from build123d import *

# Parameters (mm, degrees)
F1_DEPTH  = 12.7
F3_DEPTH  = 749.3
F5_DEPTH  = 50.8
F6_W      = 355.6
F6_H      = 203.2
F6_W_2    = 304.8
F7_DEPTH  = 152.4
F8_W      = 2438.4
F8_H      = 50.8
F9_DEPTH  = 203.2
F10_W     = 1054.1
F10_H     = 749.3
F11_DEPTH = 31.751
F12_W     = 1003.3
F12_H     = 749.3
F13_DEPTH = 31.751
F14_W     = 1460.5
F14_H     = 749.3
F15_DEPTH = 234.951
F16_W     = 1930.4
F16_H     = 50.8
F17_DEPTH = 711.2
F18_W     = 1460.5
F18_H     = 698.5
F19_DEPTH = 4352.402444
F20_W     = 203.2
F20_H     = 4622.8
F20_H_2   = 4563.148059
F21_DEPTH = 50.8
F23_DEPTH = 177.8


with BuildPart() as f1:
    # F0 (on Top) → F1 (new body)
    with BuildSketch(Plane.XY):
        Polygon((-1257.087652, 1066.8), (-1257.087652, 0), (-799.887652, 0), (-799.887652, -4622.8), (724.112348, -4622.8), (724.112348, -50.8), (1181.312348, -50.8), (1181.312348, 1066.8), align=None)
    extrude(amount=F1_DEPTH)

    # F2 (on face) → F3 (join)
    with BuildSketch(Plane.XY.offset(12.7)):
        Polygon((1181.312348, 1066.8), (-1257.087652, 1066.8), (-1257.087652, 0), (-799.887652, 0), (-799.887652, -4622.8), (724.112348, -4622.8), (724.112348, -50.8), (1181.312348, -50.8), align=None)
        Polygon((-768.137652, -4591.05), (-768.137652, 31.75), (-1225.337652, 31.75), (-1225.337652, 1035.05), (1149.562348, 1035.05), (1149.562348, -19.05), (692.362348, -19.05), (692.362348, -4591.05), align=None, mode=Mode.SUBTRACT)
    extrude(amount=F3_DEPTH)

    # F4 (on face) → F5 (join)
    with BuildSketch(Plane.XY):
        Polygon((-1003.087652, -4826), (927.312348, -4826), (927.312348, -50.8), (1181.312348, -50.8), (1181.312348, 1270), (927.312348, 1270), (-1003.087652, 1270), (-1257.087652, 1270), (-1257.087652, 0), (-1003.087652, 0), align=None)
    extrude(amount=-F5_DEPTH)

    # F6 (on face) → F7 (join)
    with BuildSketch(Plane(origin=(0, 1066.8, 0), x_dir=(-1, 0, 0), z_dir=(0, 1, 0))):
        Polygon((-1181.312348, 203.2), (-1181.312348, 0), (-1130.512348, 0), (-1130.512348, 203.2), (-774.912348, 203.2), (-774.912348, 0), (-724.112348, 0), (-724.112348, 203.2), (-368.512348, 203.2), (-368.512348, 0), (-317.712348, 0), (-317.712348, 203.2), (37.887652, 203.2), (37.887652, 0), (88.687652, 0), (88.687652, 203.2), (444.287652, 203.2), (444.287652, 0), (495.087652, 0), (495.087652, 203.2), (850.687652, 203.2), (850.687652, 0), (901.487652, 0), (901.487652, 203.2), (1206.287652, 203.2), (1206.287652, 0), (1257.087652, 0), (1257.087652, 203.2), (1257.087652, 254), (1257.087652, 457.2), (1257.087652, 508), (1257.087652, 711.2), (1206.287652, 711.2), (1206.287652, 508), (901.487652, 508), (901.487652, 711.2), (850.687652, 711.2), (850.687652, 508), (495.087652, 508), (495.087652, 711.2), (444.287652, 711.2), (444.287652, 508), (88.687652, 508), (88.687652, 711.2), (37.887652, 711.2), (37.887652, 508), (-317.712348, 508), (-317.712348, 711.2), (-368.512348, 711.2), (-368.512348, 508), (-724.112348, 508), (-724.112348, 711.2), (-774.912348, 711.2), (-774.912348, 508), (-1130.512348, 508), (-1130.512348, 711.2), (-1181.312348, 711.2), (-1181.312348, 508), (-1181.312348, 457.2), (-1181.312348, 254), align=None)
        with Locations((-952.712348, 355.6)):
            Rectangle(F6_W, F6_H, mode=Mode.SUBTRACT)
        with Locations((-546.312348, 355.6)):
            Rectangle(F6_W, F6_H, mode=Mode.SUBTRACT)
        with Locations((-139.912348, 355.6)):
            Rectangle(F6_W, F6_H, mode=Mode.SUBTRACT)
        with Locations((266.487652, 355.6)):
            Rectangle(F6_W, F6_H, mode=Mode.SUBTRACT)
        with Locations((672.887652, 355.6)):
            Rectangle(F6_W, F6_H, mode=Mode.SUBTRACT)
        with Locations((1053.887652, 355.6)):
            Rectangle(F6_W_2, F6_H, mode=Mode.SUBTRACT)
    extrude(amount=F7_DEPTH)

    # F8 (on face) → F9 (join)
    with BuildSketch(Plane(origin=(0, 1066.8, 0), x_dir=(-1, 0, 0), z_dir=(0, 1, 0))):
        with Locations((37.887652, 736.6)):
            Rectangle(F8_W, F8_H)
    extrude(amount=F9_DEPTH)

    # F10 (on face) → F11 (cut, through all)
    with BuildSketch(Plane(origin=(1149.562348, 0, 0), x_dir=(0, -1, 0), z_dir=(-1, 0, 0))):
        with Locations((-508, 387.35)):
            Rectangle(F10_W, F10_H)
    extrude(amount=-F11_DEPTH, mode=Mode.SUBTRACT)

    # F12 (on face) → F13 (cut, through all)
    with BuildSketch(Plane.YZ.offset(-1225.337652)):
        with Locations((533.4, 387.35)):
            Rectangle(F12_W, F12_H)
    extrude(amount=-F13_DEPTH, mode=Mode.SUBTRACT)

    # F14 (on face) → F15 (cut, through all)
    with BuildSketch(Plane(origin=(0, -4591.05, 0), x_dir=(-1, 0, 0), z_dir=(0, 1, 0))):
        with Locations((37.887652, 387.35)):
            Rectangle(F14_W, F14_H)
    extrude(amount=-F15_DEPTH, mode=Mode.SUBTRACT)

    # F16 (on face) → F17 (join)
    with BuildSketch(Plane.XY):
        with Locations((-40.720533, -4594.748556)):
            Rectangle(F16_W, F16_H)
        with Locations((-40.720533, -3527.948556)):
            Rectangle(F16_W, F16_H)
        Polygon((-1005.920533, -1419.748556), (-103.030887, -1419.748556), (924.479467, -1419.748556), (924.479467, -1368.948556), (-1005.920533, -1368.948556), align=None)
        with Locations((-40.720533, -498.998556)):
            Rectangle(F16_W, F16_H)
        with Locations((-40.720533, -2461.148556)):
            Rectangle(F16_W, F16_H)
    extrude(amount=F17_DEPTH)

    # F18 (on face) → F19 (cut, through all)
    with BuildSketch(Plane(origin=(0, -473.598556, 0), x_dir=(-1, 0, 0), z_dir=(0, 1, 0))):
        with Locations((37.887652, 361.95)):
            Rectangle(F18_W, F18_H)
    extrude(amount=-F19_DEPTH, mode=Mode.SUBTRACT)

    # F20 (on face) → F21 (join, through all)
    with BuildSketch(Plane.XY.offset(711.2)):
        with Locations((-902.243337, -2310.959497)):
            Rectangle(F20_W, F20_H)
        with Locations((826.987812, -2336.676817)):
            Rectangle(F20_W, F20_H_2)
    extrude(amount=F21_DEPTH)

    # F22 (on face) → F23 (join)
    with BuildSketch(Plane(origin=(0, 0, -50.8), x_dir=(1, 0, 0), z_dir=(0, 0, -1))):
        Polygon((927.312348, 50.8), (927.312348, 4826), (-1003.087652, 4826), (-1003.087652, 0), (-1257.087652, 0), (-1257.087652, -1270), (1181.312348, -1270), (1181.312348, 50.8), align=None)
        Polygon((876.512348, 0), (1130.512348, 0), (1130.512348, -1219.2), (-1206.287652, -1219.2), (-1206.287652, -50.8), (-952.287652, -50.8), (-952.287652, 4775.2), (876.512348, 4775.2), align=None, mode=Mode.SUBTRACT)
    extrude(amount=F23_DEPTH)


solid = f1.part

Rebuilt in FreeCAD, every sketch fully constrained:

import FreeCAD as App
import Part
import Sketcher

V = App.Vector
Q = App.Units.Quantity

doc = App.newDocument("Part")
body = doc.addObject("PartDesign::Body", "Body")

# Sketch on XY plane
sketch1 = doc.addObject("Sketcher::SketchObject", "Sketch")
body.addObject(sketch1)
sketch1.AttachmentSupport = (doc.XY_Plane, [""])
sketch1.MapMode = "FlatFace"
sketch1.addGeometry([
    Part.LineSegment(V(-1257, 1067, 0), V(-1257, 0, 0)),  # 0
    Part.LineSegment(V(-1257, 0, 0), V(-800, 0, 0)),  # 1
    Part.LineSegment(V(-800, 0, 0), V(-800, -4623, 0)),  # 2
    Part.LineSegment(V(-800, -4623, 0), V(724, -4623, 0)),  # 3
    Part.LineSegment(V(724, -4623, 0), V(724, -51, 0)),  # 4
    Part.LineSegment(V(724, -51, 0), V(1181, -51, 0)),  # 5
    Part.LineSegment(V(1181, -51, 0), V(1181, 1067, 0)),  # 6
    Part.LineSegment(V(1181, 1067, 0), V(-1257, 1067, 0)),  # 7
], False)
sketch1.addConstraint([
    Sketcher.Constraint("Coincident", 0, 2, 1, 1),
    Sketcher.Constraint("Coincident", 1, 2, 2, 1),
    Sketcher.Constraint("Coincident", 2, 2, 3, 1),
    Sketcher.Constraint("Coincident", 3, 2, 4, 1),
    Sketcher.Constraint("Coincident", 4, 2, 5, 1),
    Sketcher.Constraint("Coincident", 5, 2, 6, 1),
    Sketcher.Constraint("Coincident", 6, 2, 7, 1),
    Sketcher.Constraint("Coincident", 7, 2, 0, 1),
    Sketcher.Constraint("Vertical", 0),
    Sketcher.Constraint("Horizontal", 1),
    Sketcher.Constraint("Vertical", 2),
    Sketcher.Constraint("Horizontal", 3),
    Sketcher.Constraint("Vertical", 4),
    Sketcher.Constraint("Horizontal", 5),
    Sketcher.Constraint("Vertical", 6),
    Sketcher.Constraint("Horizontal", 7),
    Sketcher.Constraint("PointOnObject", 0, 2, -1),
    Sketcher.Constraint("Equal", 1, 5),
    Sketcher.Constraint("DistanceX", 1, 1, 1, 2, Q("18 in")),
    Sketcher.Constraint("DistanceX", 3, 1, 3, 2, Q("60 in")),
    Sketcher.Constraint("DistanceY", 0, 2, 0, 1, Q("42 in")),
    Sketcher.Constraint("DistanceY", 2, 2, 2, 1, Q("182 in")),
    Sketcher.Constraint("DistanceY", 4, 1, 4, 2, Q("180 in")),
    Sketcher.Constraint("DistanceX", 0, 2, -1, 1, Q("1257.087652 mm")),
])
pad1 = doc.addObject("PartDesign::Pad", "Pad")
body.addObject(pad1)
pad1.Profile = sketch1
pad1.Length = Q("0.5 in")

# Sketch on XY plane
sketch2 = doc.addObject("Sketcher::SketchObject", "Sketch001")
body.addObject(sketch2)
sketch2.AttachmentSupport = (doc.XY_Plane, [""])
sketch2.MapMode = "FlatFace"
sketch2.AttachmentOffset = App.Placement(V(0, 0, 0.5 * 25.4), App.Rotation())
sketch2.addGeometry([
    Part.LineSegment(V(1181, 1067, 0), V(-1257, 1067, 0)),  # 0
    Part.LineSegment(V(-1257, 1067, 0), V(-1257, 0, 0)),  # 1
    Part.LineSegment(V(-1257, 0, 0), V(-800, 0, 0)),  # 2
    Part.LineSegment(V(-800, 0, 0), V(-800, -4623, 0)),  # 3
    Part.LineSegment(V(-800, -4623, 0), V(724, -4623, 0)),  # 4
    Part.LineSegment(V(724, -4623, 0), V(724, -51, 0)),  # 5
    Part.LineSegment(V(724, -51, 0), V(1181, -51, 0)),  # 6
    Part.LineSegment(V(1181, -51, 0), V(1181, 1067, 0)),  # 7
    Part.LineSegment(V(692, -4591, 0), V(-768, -4591, 0)),  # 8
    Part.LineSegment(V(-768, -4591, 0), V(-768, 32, 0)),  # 9
    Part.LineSegment(V(-768, 32, 0), V(-1225, 32, 0)),  # 10
    Part.LineSegment(V(-1225, 32, 0), V(-1225, 1035, 0)),  # 11
    Part.LineSegment(V(-1225, 1035, 0), V(1150, 1035, 0)),  # 12
    Part.LineSegment(V(1150, 1035, 0), V(1150, -19, 0)),  # 13
    Part.LineSegment(V(1150, -19, 0), V(692, -19, 0)),  # 14
    Part.LineSegment(V(692, -19, 0), V(692, -4591, 0)),  # 15
], False)
sketch2.addConstraint([
    Sketcher.Constraint("Coincident", 0, 2, 1, 1),
    Sketcher.Constraint("Coincident", 1, 2, 2, 1),
    Sketcher.Constraint("Coincident", 2, 2, 3, 1),
    Sketcher.Constraint("Coincident", 3, 2, 4, 1),
    Sketcher.Constraint("Coincident", 4, 2, 5, 1),
    Sketcher.Constraint("Coincident", 5, 2, 6, 1),
    Sketcher.Constraint("Coincident", 6, 2, 7, 1),
    Sketcher.Constraint("Coincident", 7, 2, 0, 1),
    Sketcher.Constraint("Coincident", 8, 2, 9, 1),
    Sketcher.Constraint("Coincident", 9, 2, 10, 1),
    Sketcher.Constraint("Coincident", 10, 2, 11, 1),
    Sketcher.Constraint("Coincident", 11, 2, 12, 1),
    Sketcher.Constraint("Coincident", 12, 2, 13, 1),
    Sketcher.Constraint("Coincident", 13, 2, 14, 1),
    Sketcher.Constraint("Coincident", 14, 2, 15, 1),
    Sketcher.Constraint("Coincident", 15, 2, 8, 1),
    Sketcher.Constraint("Horizontal", 0),
    Sketcher.Constraint("Vertical", 1),
    Sketcher.Constraint("Horizontal", 2),
    Sketcher.Constraint("Vertical", 3),
    Sketcher.Constraint("Horizontal", 4),
    Sketcher.Constraint("Vertical", 5),
    Sketcher.Constraint("Horizontal", 6),
    Sketcher.Constraint("Vertical", 7),
    Sketcher.Constraint("Horizontal", 8),
    Sketcher.Constraint("Vertical", 9),
    Sketcher.Constraint("Horizontal", 10),
    Sketcher.Constraint("Vertical", 11),
    Sketcher.Constraint("Horizontal", 12),
    Sketcher.Constraint("Vertical", 13),
    Sketcher.Constraint("Horizontal", 14),
    Sketcher.Constraint("Vertical", 15),
    Sketcher.Constraint("PointOnObject", 1, 2, -1),
    Sketcher.Constraint("Equal", 2, 6),
    Sketcher.Constraint("Equal", 6, 10),
    Sketcher.Constraint("Equal", 10, 14),
    Sketcher.Constraint("Equal", 3, 9),
    Sketcher.Constraint("Equal", 5, 15),
    Sketcher.Constraint("DistanceX", 0, 2, 0, 1, Q("96 in")),
    Sketcher.Constraint("DistanceX", 2, 1, 2, 2, Q("18 in")),
    Sketcher.Constraint("DistanceY", 1, 2, 1, 1, Q("42 in")),
    Sketcher.Constraint("DistanceY", 3, 2, 3, 1, Q("182 in")),
    Sketcher.Constraint("DistanceY", 5, 1, 5, 2, Q("180 in")),
    Sketcher.Constraint("DistanceX", 8, 2, 8, 1, Q("57.5 in")),
    Sketcher.Constraint("DistanceY", 11, 1, 11, 2, Q("39.5 in")),
    Sketcher.Constraint("DistanceY", 8, 2, -1, 1, Q("180.75 in")),
    Sketcher.Constraint("DistanceX", 3, 2, 8, 2, Q("1.25 in")),
    Sketcher.Constraint("DistanceX", 0, 2, -1, 1, Q("1257.087652 mm")),
])
pad2 = doc.addObject("PartDesign::Pad", "Pad001")
body.addObject(pad2)
pad2.Profile = sketch2
pad2.Length = Q("29.5 in")

# Sketch on XY plane
sketch3 = doc.addObject("Sketcher::SketchObject", "Sketch002")
body.addObject(sketch3)
sketch3.AttachmentSupport = (doc.XY_Plane, [""])
sketch3.MapMode = "FlatFace"
sketch3.addGeometry([
    Part.LineSegment(V(-1003, -4826, 0), V(927, -4826, 0)),  # 0
    Part.LineSegment(V(927, -4826, 0), V(927, -51, 0)),  # 1
    Part.LineSegment(V(927, -51, 0), V(1181, -51, 0)),  # 2
    Part.LineSegment(V(1181, -51, 0), V(1181, 1270, 0)),  # 3
    Part.LineSegment(V(1181, 1270, 0), V(-1257, 1270, 0)),  # 4
    Part.LineSegment(V(-1257, 1270, 0), V(-1257, 0, 0)),  # 5
    Part.LineSegment(V(-1257, 0, 0), V(-1003, 0, 0)),  # 6
    Part.LineSegment(V(-1003, 0, 0), V(-1003, -4826, 0)),  # 7
], False)
sketch3.addConstraint([
    Sketcher.Constraint("Coincident", 0, 2, 1, 1),
    Sketcher.Constraint("Coincident", 1, 2, 2, 1),
    Sketcher.Constraint("Coincident", 2, 2, 3, 1),
    Sketcher.Constraint("Coincident", 3, 2, 4, 1),
    Sketcher.Constraint("Coincident", 4, 2, 5, 1),
    Sketcher.Constraint("Coincident", 5, 2, 6, 1),
    Sketcher.Constraint("Coincident", 6, 2, 7, 1),
    Sketcher.Constraint("Coincident", 7, 2, 0, 1),
    Sketcher.Constraint("Horizontal", 0),
    Sketcher.Constraint("Vertical", 1),
    Sketcher.Constraint("Horizontal", 2),
    Sketcher.Constraint("Vertical", 3),
    Sketcher.Constraint("Horizontal", 4),
    Sketcher.Constraint("Vertical", 5),
    Sketcher.Constraint("Horizontal", 6),
    Sketcher.Constraint("Vertical", 7),
    Sketcher.Constraint("PointOnObject", 5, 2, -1),
    Sketcher.Constraint("Equal", 2, 6),
    Sketcher.Constraint("DistanceX", 0, 1, 0, 2, Q("76 in")),
    Sketcher.Constraint("DistanceX", 2, 1, 2, 2, Q("10 in")),
    Sketcher.Constraint("DistanceY", 1, 1, 1, 2, Q("188 in")),
    Sketcher.Constraint("DistanceY", 3, 1, 3, 2, Q("52 in")),
    Sketcher.Constraint("DistanceY", 5, 2, 5, 1, Q("50 in")),
    Sketcher.Constraint("DistanceX", -1, 1, 0, 2, Q("927.312348 mm")),
])
pad3 = doc.addObject("PartDesign::Pad", "Pad002")
body.addObject(pad3)
pad3.Profile = sketch3
pad3.Length = Q("2 in")
pad3.Reversed = True

# Sketch on XZ plane
sketch4 = doc.addObject("Sketcher::SketchObject", "Sketch003")
body.addObject(sketch4)
sketch4.AttachmentSupport = (doc.XZ_Plane, [""])
sketch4.MapMode = "FlatFace"
sketch4.AttachmentOffset = App.Placement(V(0, 0, -42 * 25.4), App.Rotation())
sketch4.addGeometry([
    Part.LineSegment(V(1181, 0, 0), V(1131, 0, 0)),  # 0
    Part.LineSegment(V(1131, 0, 0), V(1131, 203, 0)),  # 1
    Part.LineSegment(V(1131, 203, 0), V(775, 203, 0)),  # 2
    Part.LineSegment(V(775, 203, 0), V(775, 0, 0)),  # 3
    Part.LineSegment(V(775, 0, 0), V(724, 0, 0)),  # 4
    Part.LineSegment(V(724, 0, 0), V(724, 203, 0)),  # 5
    Part.LineSegment(V(724, 203, 0), V(369, 203, 0)),  # 6
    Part.LineSegment(V(369, 203, 0), V(369, 0, 0)),  # 7
    Part.LineSegment(V(369, 0, 0), V(318, 0, 0)),  # 8
    Part.LineSegment(V(318, 0, 0), V(318, 203, 0)),  # 9
    Part.LineSegment(V(318, 203, 0), V(-38, 203, 0)),  # 10
    Part.LineSegment(V(-38, 203, 0), V(-38, 0, 0)),  # 11
    Part.LineSegment(V(-38, 0, 0), V(-89, 0, 0)),  # 12
    Part.LineSegment(V(-89, 0, 0), V(-89, 203, 0)),  # 13
    Part.LineSegment(V(-89, 203, 0), V(-444, 203, 0)),  # 14
    Part.LineSegment(V(-444, 203, 0), V(-444, 0, 0)),  # 15
    Part.LineSegment(V(-444, 0, 0), V(-495, 0, 0)),  # 16
    Part.LineSegment(V(-495, 0, 0), V(-495, 203, 0)),  # 17
    Part.LineSegment(V(-495, 203, 0), V(-851, 203, 0)),  # 18
    Part.LineSegment(V(-851, 203, 0), V(-851, 0, 0)),  # 19
    Part.LineSegment(V(-851, 0, 0), V(-901, 0, 0)),  # 20
    Part.LineSegment(V(-901, 0, 0), V(-901, 203, 0)),  # 21
    Part.LineSegment(V(-901, 203, 0), V(-1206, 203, 0)),  # 22
    Part.LineSegment(V(-1206, 203, 0), V(-1206, 0, 0)),  # 23
    Part.LineSegment(V(-1206, 0, 0), V(-1257, 0, 0)),  # 24
    Part.LineSegment(V(-1257, 0, 0), V(-1257, 711, 0)),  # 25
    Part.LineSegment(V(-1257, 711, 0), V(-1206, 711, 0)),  # 26
    Part.LineSegment(V(-1206, 711, 0), V(-1206, 508, 0)),  # 27
    Part.LineSegment(V(-1206, 508, 0), V(-901, 508, 0)),  # 28
    Part.LineSegment(V(-901, 508, 0), V(-901, 711, 0)),  # 29
    Part.LineSegment(V(-901, 711, 0), V(-851, 711, 0)),  # 30
    Part.LineSegment(V(-851, 711, 0), V(-851, 508, 0)),  # 31
    Part.LineSegment(V(-851, 508, 0), V(-495, 508, 0)),  # 32
    Part.LineSegment(V(-495, 508, 0), V(-495, 711, 0)),  # 33
    Part.LineSegment(V(-495, 711, 0), V(-444, 711, 0)),  # 34
    Part.LineSegment(V(-444, 711, 0), V(-444, 508, 0)),  # 35
    Part.LineSegment(V(-444, 508, 0), V(-89, 508, 0)),  # 36
    Part.LineSegment(V(-89, 508, 0), V(-89, 711, 0)),  # 37
    Part.LineSegment(V(-89, 711, 0), V(-38, 711, 0)),  # 38
    Part.LineSegment(V(-38, 711, 0), V(-38, 508, 0)),  # 39
    Part.LineSegment(V(-38, 508, 0), V(318, 508, 0)),  # 40
    Part.LineSegment(V(318, 508, 0), V(318, 711, 0)),  # 41
    Part.LineSegment(V(318, 711, 0), V(369, 711, 0)),  # 42
    Part.LineSegment(V(369, 711, 0), V(369, 508, 0)),  # 43
    Part.LineSegment(V(369, 508, 0), V(724, 508, 0)),  # 44
    Part.LineSegment(V(724, 508, 0), V(724, 711, 0)),  # 45
    Part.LineSegment(V(724, 711, 0), V(775, 711, 0)),  # 46
    Part.LineSegment(V(775, 711, 0), V(775, 508, 0)),  # 47
    Part.LineSegment(V(775, 508, 0), V(1131, 508, 0)),  # 48
    Part.LineSegment(V(1131, 508, 0), V(1131, 711, 0)),  # 49
    Part.LineSegment(V(1131, 711, 0), V(1181, 711, 0)),  # 50
    Part.LineSegment(V(1181, 711, 0), V(1181, 0, 0)),  # 51
    Part.LineSegment(V(775, 254, 0), V(1131, 254, 0)),  # 52
    Part.LineSegment(V(1131, 254, 0), V(1131, 457, 0)),  # 53
    Part.LineSegment(V(1131, 457, 0), V(775, 457, 0)),  # 54
    Part.LineSegment(V(775, 457, 0), V(775, 254, 0)),  # 55
    Part.LineSegment(V(369, 254, 0), V(724, 254, 0)),  # 56
    Part.LineSegment(V(724, 254, 0), V(724, 457, 0)),  # 57
    Part.LineSegment(V(724, 457, 0), V(369, 457, 0)),  # 58
    Part.LineSegment(V(369, 457, 0), V(369, 254, 0)),  # 59
    Part.LineSegment(V(-38, 254, 0), V(318, 254, 0)),  # 60
    Part.LineSegment(V(318, 254, 0), V(318, 457, 0)),  # 61
    Part.LineSegment(V(318, 457, 0), V(-38, 457, 0)),  # 62
    Part.LineSegment(V(-38, 457, 0), V(-38, 254, 0)),  # 63
    Part.LineSegment(V(-444, 254, 0), V(-89, 254, 0)),  # 64
    Part.LineSegment(V(-89, 254, 0), V(-89, 457, 0)),  # 65
    Part.LineSegment(V(-89, 457, 0), V(-444, 457, 0)),  # 66
    Part.LineSegment(V(-444, 457, 0), V(-444, 254, 0)),  # 67
    Part.LineSegment(V(-851, 254, 0), V(-495, 254, 0)),  # 68
    Part.LineSegment(V(-495, 254, 0), V(-495, 457, 0)),  # 69
    Part.LineSegment(V(-495, 457, 0), V(-851, 457, 0)),  # 70
    Part.LineSegment(V(-851, 457, 0), V(-851, 254, 0)),  # 71
    Part.LineSegment(V(-1206, 254, 0), V(-901, 254, 0)),  # 72
    Part.LineSegment(V(-901, 254, 0), V(-901, 457, 0)),  # 73
    Part.LineSegment(V(-901, 457, 0), V(-1206, 457, 0)),  # 74
    Part.LineSegment(V(-1206, 457, 0), V(-1206, 254, 0)),  # 75
], False)
sketch4.addConstraint([
    Sketcher.Constraint("Coincident", 0, 2, 1, 1),
    Sketcher.Constraint("Coincident", 1, 2, 2, 1),
    Sketcher.Constraint("Coincident", 2, 2, 3, 1),
    Sketcher.Constraint("Coincident", 3, 2, 4, 1),
    Sketcher.Constraint("Coincident", 4, 2, 5, 1),
    Sketcher.Constraint("Coincident", 5, 2, 6, 1),
    Sketcher.Constraint("Coincident", 6, 2, 7, 1),
    Sketcher.Constraint("Coincident", 7, 2, 8, 1),
    Sketcher.Constraint("Coincident", 8, 2, 9, 1),
    Sketcher.Constraint("Coincident", 9, 2, 10, 1),
    Sketcher.Constraint("Coincident", 10, 2, 11, 1),
    Sketcher.Constraint("Coincident", 11, 2, 12, 1),
    Sketcher.Constraint("Coincident", 12, 2, 13, 1),
    Sketcher.Constraint("Coincident", 13, 2, 14, 1),
    Sketcher.Constraint("Coincident", 14, 2, 15, 1),
    Sketcher.Constraint("Coincident", 15, 2, 16, 1),
    Sketcher.Constraint("Coincident", 16, 2, 17, 1),
    Sketcher.Constraint("Coincident", 17, 2, 18, 1),
    Sketcher.Constraint("Coincident", 18, 2, 19, 1),
    Sketcher.Constraint("Coincident", 19, 2, 20, 1),
    Sketcher.Constraint("Coincident", 20, 2, 21, 1),
    Sketcher.Constraint("Coincident", 21, 2, 22, 1),
    Sketcher.Constraint("Coincident", 22, 2, 23, 1),
    Sketcher.Constraint("Coincident", 23, 2, 24, 1),
    Sketcher.Constraint("Coincident", 24, 2, 25, 1),
    Sketcher.Constraint("Coincident", 25, 2, 26, 1),
    Sketcher.Constraint("Coincident", 26, 2, 27, 1),
    Sketcher.Constraint("Coincident", 27, 2, 28, 1),
    Sketcher.Constraint("Coincident", 28, 2, 29, 1),
    Sketcher.Constraint("Coincident", 29, 2, 30, 1),
    Sketcher.Constraint("Coincident", 30, 2, 31, 1),
    Sketcher.Constraint("Coincident", 31, 2, 32, 1),
    Sketcher.Constraint("Coincident", 32, 2, 33, 1),
    Sketcher.Constraint("Coincident", 33, 2, 34, 1),
    Sketcher.Constraint("Coincident", 34, 2, 35, 1),
    Sketcher.Constraint("Coincident", 35, 2, 36, 1),
    Sketcher.Constraint("Coincident", 36, 2, 37, 1),
    Sketcher.Constraint("Coincident", 37, 2, 38, 1),
    Sketcher.Constraint("Coincident", 38, 2, 39, 1),
    Sketcher.Constraint("Coincident", 39, 2, 40, 1),
    Sketcher.Constraint("Coincident", 40, 2, 41, 1),
    Sketcher.Constraint("Coincident", 41, 2, 42, 1),
    Sketcher.Constraint("Coincident", 42, 2, 43, 1),
    Sketcher.Constraint("Coincident", 43, 2, 44, 1),
    Sketcher.Constraint("Coincident", 44, 2, 45, 1),
    Sketcher.Constraint("Coincident", 45, 2, 46, 1),
    Sketcher.Constraint("Coincident", 46, 2, 47, 1),
    Sketcher.Constraint("Coincident", 47, 2, 48, 1),
    Sketcher.Constraint("Coincident", 48, 2, 49, 1),
    Sketcher.Constraint("Coincident", 49, 2, 50, 1),
    Sketcher.Constraint("Coincident", 50, 2, 51, 1),
    Sketcher.Constraint("Coincident", 51, 2, 0, 1),
    Sketcher.Constraint("Coincident", 52, 2, 53, 1),
    Sketcher.Constraint("Coincident", 53, 2, 54, 1),
    Sketcher.Constraint("Coincident", 54, 2, 55, 1),
    Sketcher.Constraint("Coincident", 55, 2, 52, 1),
    Sketcher.Constraint("Coincident", 56, 2, 57, 1),
    Sketcher.Constraint("Coincident", 57, 2, 58, 1),
    Sketcher.Constraint("Coincident", 58, 2, 59, 1),
    Sketcher.Constraint("Coincident", 59, 2, 56, 1),
    Sketcher.Constraint("Coincident", 60, 2, 61, 1),
    Sketcher.Constraint("Coincident", 61, 2, 62, 1),
    Sketcher.Constraint("Coincident", 62, 2, 63, 1),
    Sketcher.Constraint("Coincident", 63, 2, 60, 1),
    Sketcher.Constraint("Coincident", 64, 2, 65, 1),
    Sketcher.Constraint("Coincident", 65, 2, 66, 1),
    Sketcher.Constraint("Coincident", 66, 2, 67, 1),
    Sketcher.Constraint("Coincident", 67, 2, 64, 1),
    Sketcher.Constraint("Coincident", 68, 2, 69, 1),
    Sketcher.Constraint("Coincident", 69, 2, 70, 1),
    Sketcher.Constraint("Coincident", 70, 2, 71, 1),
    Sketcher.Constraint("Coincident", 71, 2, 68, 1),
    Sketcher.Constraint("Coincident", 72, 2, 73, 1),
    Sketcher.Constraint("Coincident", 73, 2, 74, 1),
    Sketcher.Constraint("Coincident", 74, 2, 75, 1),
    Sketcher.Constraint("Coincident", 75, 2, 72, 1),
    Sketcher.Constraint("Horizontal", 0),
    Sketcher.Constraint("Vertical", 1),
    Sketcher.Constraint("Horizontal", 2),
    Sketcher.Constraint("Vertical", 3),
    Sketcher.Constraint("Horizontal", 4),
    Sketcher.Constraint("Vertical", 5),
    Sketcher.Constraint("Horizontal", 6),
    Sketcher.Constraint("Vertical", 7),
    Sketcher.Constraint("Horizontal", 8),
    Sketcher.Constraint("Vertical", 9),
    Sketcher.Constraint("Horizontal", 10),
    Sketcher.Constraint("Vertical", 11),
    Sketcher.Constraint("Horizontal", 12),
    Sketcher.Constraint("Vertical", 13),
    Sketcher.Constraint("Horizontal", 14),
    Sketcher.Constraint("Vertical", 15),
    Sketcher.Constraint("Horizontal", 16),
    Sketcher.Constraint("Vertical", 17),
    Sketcher.Constraint("Horizontal", 18),
    Sketcher.Constraint("Vertical", 19),
    Sketcher.Constraint("Horizontal", 20),
    Sketcher.Constraint("Vertical", 21),
    Sketcher.Constraint("Horizontal", 22),
    Sketcher.Constraint("Vertical", 23),
    Sketcher.Constraint("Horizontal", 24),
    Sketcher.Constraint("Vertical", 25),
    Sketcher.Constraint("Horizontal", 26),
    Sketcher.Constraint("Vertical", 27),
    Sketcher.Constraint("Horizontal", 28),
    Sketcher.Constraint("Vertical", 29),
    Sketcher.Constraint("Horizontal", 30),
    Sketcher.Constraint("Vertical", 31),
    Sketcher.Constraint("Horizontal", 32),
    Sketcher.Constraint("Vertical", 33),
    Sketcher.Constraint("Horizontal", 34),
    Sketcher.Constraint("Vertical", 35),
    Sketcher.Constraint("Horizontal", 36),
    Sketcher.Constraint("Vertical", 37),
    Sketcher.Constraint("Horizontal", 38),
    Sketcher.Constraint("Vertical", 39),
    Sketcher.Constraint("Horizontal", 40),
    Sketcher.Constraint("Vertical", 41),
    Sketcher.Constraint("Horizontal", 42),
    Sketcher.Constraint("Vertical", 43),
    Sketcher.Constraint("Horizontal", 44),
    Sketcher.Constraint("Vertical", 45),
    Sketcher.Constraint("Horizontal", 46),
    Sketcher.Constraint("Vertical", 47),
    Sketcher.Constraint("Horizontal", 48),
    Sketcher.Constraint("Vertical", 49),
    Sketcher.Constraint("Horizontal", 50),
    Sketcher.Constraint("Vertical", 51),
    Sketcher.Constraint("Horizontal", 52),
    Sketcher.Constraint("Vertical", 53),
    Sketcher.Constraint("Horizontal", 54),
    Sketcher.Constraint("Vertical", 55),
    Sketcher.Constraint("Horizontal", 56),
    Sketcher.Constraint("Vertical", 57),
    Sketcher.Constraint("Horizontal", 58),
    Sketcher.Constraint("Vertical", 59),
    Sketcher.Constraint("Horizontal", 60),
    Sketcher.Constraint("Vertical", 61),
    Sketcher.Constraint("Horizontal", 62),
    Sketcher.Constraint("Vertical", 63),
    Sketcher.Constraint("Horizontal", 64),
    Sketcher.Constraint("Vertical", 65),
    Sketcher.Constraint("Horizontal", 66),
    Sketcher.Constraint("Vertical", 67),
    Sketcher.Constraint("Horizontal", 68),
    Sketcher.Constraint("Vertical", 69),
    Sketcher.Constraint("Horizontal", 70),
    Sketcher.Constraint("Vertical", 71),
    Sketcher.Constraint("Horizontal", 72),
    Sketcher.Constraint("Vertical", 73),
    Sketcher.Constraint("Horizontal", 74),
    Sketcher.Constraint("Vertical", 75),
    Sketcher.Constraint("PointOnObject", 0, 2, -1),
    Sketcher.Constraint("PointOnObject", 3, 2, -1),
    Sketcher.Constraint("PointOnObject", 7, 2, -1),
    Sketcher.Constraint("PointOnObject", 11, 2, -1),
    Sketcher.Constraint("PointOnObject", 15, 2, -1),
    Sketcher.Constraint("PointOnObject", 19, 2, -1),
    Sketcher.Constraint("PointOnObject", 23, 2, -1),
    Sketcher.Constraint("Horizontal", 2, 2, 5, 2),
    Sketcher.Constraint("Horizontal", 6, 2, 9, 2),
    Sketcher.Constraint("Horizontal", 10, 2, 13, 2),
    Sketcher.Constraint("Horizontal", 14, 2, 17, 2),
    Sketcher.Constraint("Horizontal", 18, 2, 21, 2),
    Sketcher.Constraint("Horizontal", 26, 2, 29, 2),
    Sketcher.Constraint("Horizontal", 28, 2, 31, 2),
    Sketcher.Constraint("Horizontal", 30, 2, 33, 2),
    Sketcher.Constraint("Horizontal", 32, 2, 35, 2),
    Sketcher.Constraint("Horizontal", 34, 2, 37, 2),
    Sketcher.Constraint("Horizontal", 36, 2, 39, 2),
    Sketcher.Constraint("Horizontal", 38, 2, 41, 2),
    Sketcher.Constraint("Horizontal", 40, 2, 43, 2),
    Sketcher.Constraint("Horizontal", 42, 2, 45, 2),
    Sketcher.Constraint("Horizontal", 44, 2, 47, 2),
    Sketcher.Constraint("Horizontal", 46, 2, 49, 2),
    Sketcher.Constraint("Horizontal", 55, 2, 56, 2),
    Sketcher.Constraint("Horizontal", 54, 2, 57, 2),
    Sketcher.Constraint("Horizontal", 59, 2, 60, 2),
    Sketcher.Constraint("Horizontal", 58, 2, 61, 2),
    Sketcher.Constraint("Horizontal", 63, 2, 64, 2),
    Sketcher.Constraint("Horizontal", 62, 2, 65, 2),
    Sketcher.Constraint("Horizontal", 67, 2, 68, 2),
    Sketcher.Constraint("Horizontal", 66, 2, 69, 2),
    Sketcher.Constraint("Horizontal", 71, 2, 72, 2),
    Sketcher.Constraint("Horizontal", 70, 2, 73, 2),
    Sketcher.Constraint("Vertical", 23, 2, 26, 2),
    Sketcher.Constraint("Vertical", 21, 2, 28, 2),
    Sketcher.Constraint("Vertical", 19, 2, 30, 2),
    Sketcher.Constraint("Vertical", 17, 2, 32, 2),
    Sketcher.Constraint("Vertical", 15, 2, 34, 2),
    Sketcher.Constraint("Vertical", 13, 2, 36, 2),
    Sketcher.Constraint("Vertical", 11, 2, 38, 2),
    Sketcher.Constraint("Vertical", 9, 2, 40, 2),
    Sketcher.Constraint("Vertical", 7, 2, 42, 2),
    Sketcher.Constraint("Vertical", 5, 2, 44, 2),
    Sketcher.Constraint("Vertical", 3, 2, 46, 2),
    Sketcher.Constraint("Vertical", 1, 2, 48, 2),
    Sketcher.Constraint("Vertical", 49, 2, 52, 2),
    Sketcher.Constraint("Vertical", 47, 2, 54, 2),
    Sketcher.Constraint("Vertical", 45, 2, 56, 2),
    Sketcher.Constraint("Vertical", 43, 2, 58, 2),
    Sketcher.Constraint("Vertical", 41, 2, 60, 2),
    Sketcher.Constraint("Vertical", 39, 2, 62, 2),
    Sketcher.Constraint("Vertical", 37, 2, 64, 2),
    Sketcher.Constraint("Vertical", 35, 2, 66, 2),
    Sketcher.Constraint("Vertical", 33, 2, 68, 2),
    Sketcher.Constraint("Vertical", 31, 2, 70, 2),
    Sketcher.Constraint("Vertical", 29, 2, 72, 2),
    Sketcher.Constraint("Vertical", 27, 2, 74, 2),
    Sketcher.Constraint("Equal", 0, 4),
    Sketcher.Constraint("Equal", 2, 6),
    Sketcher.Constraint("Equal", 4, 8),
    Sketcher.Constraint("Equal", 6, 10),
    Sketcher.Constraint("Equal", 8, 12),
    Sketcher.Constraint("Equal", 10, 14),
    Sketcher.Constraint("Equal", 12, 16),
    Sketcher.Constraint("Equal", 14, 18),
    Sketcher.Constraint("Equal", 16, 20),
    Sketcher.Constraint("Equal", 20, 24),
    Sketcher.Constraint("Equal", 23, 27),
    Sketcher.Constraint("Equal", 49, 53),
    Sketcher.Constraint("DistanceX", 0, 2, 0, 1, Q("2 in")),
    Sketcher.Constraint("DistanceX", 2, 2, 2, 1, Q("14 in")),
    Sketcher.Constraint("DistanceX", 22, 2, 22, 1, Q("12 in")),
    Sketcher.Constraint("DistanceY", 1, 1, 1, 2, Q("8 in")),
    Sketcher.Constraint("DistanceY", 25, 1, 25, 2, Q("28 in")),
    Sketcher.Constraint("DistanceY", -1, 1, 52, 2, Q("10 in")),
    Sketcher.Constraint("DistanceX", -1, 1, 0, 2, Q("1130.512348 mm")),
])
pad4 = doc.addObject("PartDesign::Pad", "Pad003")
body.addObject(pad4)
pad4.Profile = sketch4
pad4.Length = Q("6 in")
pad4.Reversed = True

# Sketch on XZ plane
sketch5 = doc.addObject("Sketcher::SketchObject", "Sketch004")
body.addObject(sketch5)
sketch5.AttachmentSupport = (doc.XZ_Plane, [""])
sketch5.MapMode = "FlatFace"
sketch5.AttachmentOffset = App.Placement(V(0, 0, -42 * 25.4), App.Rotation())
sketch5.addGeometry([
    Part.LineSegment(V(1181, 762, 0), V(1181, 711, 0)),
    Part.LineSegment(V(1181, 711, 0), V(-1257, 711, 0)),
    Part.LineSegment(V(-1257, 711, 0), V(-1257, 762, 0)),
    Part.LineSegment(V(-1257, 762, 0), V(1181, 762, 0)),
], False)
sketch5.addConstraint([
    Sketcher.Constraint("Coincident", 0, 2, 1, 1),
    Sketcher.Constraint("Coincident", 1, 2, 2, 1),
    Sketcher.Constraint("Coincident", 2, 2, 3, 1),
    Sketcher.Constraint("Coincident", 3, 2, 0, 1),
    Sketcher.Constraint("Vertical", 0),
    Sketcher.Constraint("Horizontal", 1),
    Sketcher.Constraint("Vertical", 2),
    Sketcher.Constraint("Horizontal", 3),
    Sketcher.Constraint("DistanceX", 1, 2, 1, 1, Q("96 in")),
    Sketcher.Constraint("DistanceY", 0, 2, 0, 1, Q("2 in")),
    Sketcher.Constraint("DistanceY", -1, 1, 0, 2, Q("28 in")),
    Sketcher.Constraint("DistanceX", -1, 1, 0, 2, Q("1181.312348 mm")),
])
pad5 = doc.addObject("PartDesign::Pad", "Pad004")
body.addObject(pad5)
pad5.Profile = sketch5
pad5.Length = Q("8 in")
pad5.Reversed = True

# Sketch on YZ plane
sketch6 = doc.addObject("Sketcher::SketchObject", "Sketch005")
body.addObject(sketch6)
sketch6.AttachmentSupport = (doc.YZ_Plane, [""])
sketch6.MapMode = "FlatFace"
sketch6.AttachmentOffset = App.Placement(V(0, 0, 1149.562348), App.Rotation())
sketch6.addGeometry([
    Part.LineSegment(V(1035, 762, 0), V(1035, 13, 0)),
    Part.LineSegment(V(1035, 13, 0), V(-19, 13, 0)),
    Part.LineSegment(V(-19, 13, 0), V(-19, 762, 0)),
    Part.LineSegment(V(-19, 762, 0), V(1035, 762, 0)),
], False)
sketch6.addConstraint([
    Sketcher.Constraint("Coincident", 0, 2, 1, 1),
    Sketcher.Constraint("Coincident", 1, 2, 2, 1),
    Sketcher.Constraint("Coincident", 2, 2, 3, 1),
    Sketcher.Constraint("Coincident", 3, 2, 0, 1),
    Sketcher.Constraint("Vertical", 0),
    Sketcher.Constraint("Horizontal", 1),
    Sketcher.Constraint("Vertical", 2),
    Sketcher.Constraint("Horizontal", 3),
    Sketcher.Constraint("DistanceX", 1, 2, 1, 1, Q("41.5 in")),
    Sketcher.Constraint("DistanceY", 0, 2, 0, 1, Q("29.5 in")),
    Sketcher.Constraint("DistanceY", -1, 1, 2, 2, Q("30 in")),
    Sketcher.Constraint("DistanceX", -1, 1, 0, 2, Q("40.75 in")),
])
pocket1 = doc.addObject("PartDesign::Pocket", "Pocket")
body.addObject(pocket1)
pocket1.Profile = sketch6
pocket1.Type = "ThroughAll"
pocket1.Reversed = True

# Sketch on YZ plane
sketch7 = doc.addObject("Sketcher::SketchObject", "Sketch006")
body.addObject(sketch7)
sketch7.AttachmentSupport = (doc.YZ_Plane, [""])
sketch7.MapMode = "FlatFace"
sketch7.AttachmentOffset = App.Placement(V(0, 0, -1225.337652), App.Rotation())
sketch7.addGeometry([
    Part.LineSegment(V(32, 762, 0), V(32, 13, 0)),
    Part.LineSegment(V(32, 13, 0), V(1035, 13, 0)),
    Part.LineSegment(V(1035, 13, 0), V(1035, 762, 0)),
    Part.LineSegment(V(1035, 762, 0), V(32, 762, 0)),
], False)
sketch7.addConstraint([
    Sketcher.Constraint("Coincident", 0, 2, 1, 1),
    Sketcher.Constraint("Coincident", 1, 2, 2, 1),
    Sketcher.Constraint("Coincident", 2, 2, 3, 1),
    Sketcher.Constraint("Coincident", 3, 2, 0, 1),
    Sketcher.Constraint("Vertical", 0),
    Sketcher.Constraint("Horizontal", 1),
    Sketcher.Constraint("Vertical", 2),
    Sketcher.Constraint("Horizontal", 3),
    Sketcher.Constraint("DistanceX", 1, 1, 1, 2, Q("39.5 in")),
    Sketcher.Constraint("DistanceY", 0, 2, 0, 1, Q("29.5 in")),
    Sketcher.Constraint("DistanceY", -1, 1, 2, 2, Q("30 in")),
    Sketcher.Constraint("DistanceX", -1, 1, 0, 2, Q("1.25 in")),
])
pocket2 = doc.addObject("PartDesign::Pocket", "Pocket001")
body.addObject(pocket2)
pocket2.Profile = sketch7
pocket2.Type = "ThroughAll"

# Sketch on XZ plane
sketch8 = doc.addObject("Sketcher::SketchObject", "Sketch007")
body.addObject(sketch8)
sketch8.AttachmentSupport = (doc.XZ_Plane, [""])
sketch8.MapMode = "FlatFace"
sketch8.AttachmentOffset = App.Placement(V(0, 0, 180.75 * 25.4), App.Rotation())
sketch8.addGeometry([
    Part.LineSegment(V(692, 762, 0), V(692, 13, 0)),
    Part.LineSegment(V(692, 13, 0), V(-768, 13, 0)),
    Part.LineSegment(V(-768, 13, 0), V(-768, 762, 0)),
    Part.LineSegment(V(-768, 762, 0), V(692, 762, 0)),
], False)
sketch8.addConstraint([
    Sketcher.Constraint("Coincident", 0, 2, 1, 1),
    Sketcher.Constraint("Coincident", 1, 2, 2, 1),
    Sketcher.Constraint("Coincident", 2, 2, 3, 1),
    Sketcher.Constraint("Coincident", 3, 2, 0, 1),
    Sketcher.Constraint("Vertical", 0),
    Sketcher.Constraint("Horizontal", 1),
    Sketcher.Constraint("Vertical", 2),
    Sketcher.Constraint("Horizontal", 3),
    Sketcher.Constraint("DistanceX", 1, 2, 1, 1, Q("57.5 in")),
    Sketcher.Constraint("DistanceY", 0, 2, 0, 1, Q("29.5 in")),
    Sketcher.Constraint("DistanceY", -1, 1, 2, 2, Q("30 in")),
    Sketcher.Constraint("DistanceX", -1, 1, 0, 2, Q("692.362348 mm")),
])
pocket3 = doc.addObject("PartDesign::Pocket", "Pocket002")
body.addObject(pocket3)
pocket3.Profile = sketch8
pocket3.Type = "ThroughAll"
pocket3.Reversed = True

# Sketch on XY plane
sketch9 = doc.addObject("Sketcher::SketchObject", "Sketch008")
body.addObject(sketch9)
sketch9.AttachmentSupport = (doc.XY_Plane, [""])
sketch9.MapMode = "FlatFace"
sketch9.addGeometry([
    Part.LineSegment(V(-1006, -4569, 0), V(-1006, -4620, 0)),  # 0
    Part.LineSegment(V(-1006, -4620, 0), V(924, -4620, 0)),  # 1
    Part.LineSegment(V(924, -4620, 0), V(924, -4569, 0)),  # 2
    Part.LineSegment(V(924, -4569, 0), V(-1006, -4569, 0)),  # 3
    Part.LineSegment(V(-1006, -3503, 0), V(-1006, -3553, 0)),  # 4
    Part.LineSegment(V(-1006, -3553, 0), V(924, -3553, 0)),  # 5
    Part.LineSegment(V(924, -3553, 0), V(924, -3503, 0)),  # 6
    Part.LineSegment(V(924, -3503, 0), V(-1006, -3503, 0)),  # 7
    Part.LineSegment(V(-1006, -1420, 0), V(924, -1420, 0)),  # 8
    Part.LineSegment(V(924, -1420, 0), V(924, -1369, 0)),  # 9
    Part.LineSegment(V(924, -1369, 0), V(-1006, -1369, 0)),  # 10
    Part.LineSegment(V(-1006, -1369, 0), V(-1006, -1420, 0)),  # 11
    Part.LineSegment(V(-1006, -474, 0), V(-1006, -524, 0)),  # 12
    Part.LineSegment(V(-1006, -524, 0), V(924, -524, 0)),  # 13
    Part.LineSegment(V(924, -524, 0), V(924, -474, 0)),  # 14
    Part.LineSegment(V(924, -474, 0), V(-1006, -474, 0)),  # 15
    Part.LineSegment(V(-1006, -2436, 0), V(-1006, -2487, 0)),  # 16
    Part.LineSegment(V(-1006, -2487, 0), V(924, -2487, 0)),  # 17
    Part.LineSegment(V(924, -2487, 0), V(924, -2436, 0)),  # 18
    Part.LineSegment(V(924, -2436, 0), V(-1006, -2436, 0)),  # 19
], False)
sketch9.addConstraint([
    Sketcher.Constraint("Coincident", 0, 2, 1, 1),
    Sketcher.Constraint("Coincident", 1, 2, 2, 1),
    Sketcher.Constraint("Coincident", 2, 2, 3, 1),
    Sketcher.Constraint("Coincident", 3, 2, 0, 1),
    Sketcher.Constraint("Coincident", 4, 2, 5, 1),
    Sketcher.Constraint("Coincident", 5, 2, 6, 1),
    Sketcher.Constraint("Coincident", 6, 2, 7, 1),
    Sketcher.Constraint("Coincident", 7, 2, 4, 1),
    Sketcher.Constraint("Coincident", 8, 2, 9, 1),
    Sketcher.Constraint("Coincident", 9, 2, 10, 1),
    Sketcher.Constraint("Coincident", 10, 2, 11, 1),
    Sketcher.Constraint("Coincident", 11, 2, 8, 1),
    Sketcher.Constraint("Coincident", 12, 2, 13, 1),
    Sketcher.Constraint("Coincident", 13, 2, 14, 1),
    Sketcher.Constraint("Coincident", 14, 2, 15, 1),
    Sketcher.Constraint("Coincident", 15, 2, 12, 1),
    Sketcher.Constraint("Coincident", 16, 2, 17, 1),
    Sketcher.Constraint("Coincident", 17, 2, 18, 1),
    Sketcher.Constraint("Coincident", 18, 2, 19, 1),
    Sketcher.Constraint("Coincident", 19, 2, 16, 1),
    Sketcher.Constraint("Vertical", 0),
    Sketcher.Constraint("Horizontal", 1),
    Sketcher.Constraint("Vertical", 2),
    Sketcher.Constraint("Horizontal", 3),
    Sketcher.Constraint("Vertical", 4),
    Sketcher.Constraint("Horizontal", 5),
    Sketcher.Constraint("Vertical", 6),
    Sketcher.Constraint("Horizontal", 7),
    Sketcher.Constraint("Horizontal", 8),
    Sketcher.Constraint("Vertical", 9),
    Sketcher.Constraint("Horizontal", 10),
    Sketcher.Constraint("Vertical", 11),
    Sketcher.Constraint("Vertical", 12),
    Sketcher.Constraint("Horizontal", 13),
    Sketcher.Constraint("Vertical", 14),
    Sketcher.Constraint("Horizontal", 15),
    Sketcher.Constraint("Vertical", 16),
    Sketcher.Constraint("Horizontal", 17),
    Sketcher.Constraint("Vertical", 18),
    Sketcher.Constraint("Horizontal", 19),
    Sketcher.Constraint("Vertical", 3, 2, 4, 2),
    Sketcher.Constraint("Vertical", 2, 2, 5, 2),
    Sketcher.Constraint("Vertical", 6, 2, 8, 2),
    Sketcher.Constraint("Vertical", 7, 2, 10, 2),
    Sketcher.Constraint("Vertical", 11, 2, 12, 2),
    Sketcher.Constraint("Vertical", 9, 2, 13, 2),
    Sketcher.Constraint("Vertical", 15, 2, 16, 2),
    Sketcher.Constraint("Vertical", 14, 2, 17, 2),
    Sketcher.Constraint("Equal", 2, 4),
    Sketcher.Constraint("Equal", 6, 9),
    Sketcher.Constraint("Equal", 11, 12),
    Sketcher.Constraint("Equal", 14, 16),
    Sketcher.Constraint("DistanceX", 1, 1, 1, 2, Q("76 in")),
    Sketcher.Constraint("DistanceY", 0, 2, 0, 1, Q("2 in")),
    Sketcher.Constraint("DistanceY", 3, 2, 4, 2, Q("40 in")),
    Sketcher.Constraint("DistanceY", 6, 2, 8, 2, Q("82 in")),
    Sketcher.Constraint("DistanceY", 7, 2, 16, 2, Q("40 in")),
    Sketcher.Constraint("DistanceY", 10, 2, 12, 2, Q("33.25 in")),
    Sketcher.Constraint("DistanceX", 0, 2, -1, 1, Q("1005.920533 mm")),
    Sketcher.Constraint("DistanceY", 0, 2, -1, 1, Q("4620.148556 mm")),
])
pad6 = doc.addObject("PartDesign::Pad", "Pad005")
body.addObject(pad6)
pad6.Profile = sketch9
pad6.Length = Q("28 in")

# Sketch on XZ plane
sketch10 = doc.addObject("Sketcher::SketchObject", "Sketch009")
body.addObject(sketch10)
sketch10.AttachmentSupport = (doc.XZ_Plane, [""])
sketch10.MapMode = "FlatFace"
sketch10.AttachmentOffset = App.Placement(V(0, 0, 473.598556), App.Rotation())
sketch10.addGeometry([
    Part.LineSegment(V(692, 711, 0), V(692, 13, 0)),
    Part.LineSegment(V(692, 13, 0), V(-768, 13, 0)),
    Part.LineSegment(V(-768, 13, 0), V(-768, 711, 0)),
    Part.LineSegment(V(-768, 711, 0), V(692, 711, 0)),
], False)
sketch10.addConstraint([
    Sketcher.Constraint("Coincident", 0, 2, 1, 1),
    Sketcher.Constraint("Coincident", 1, 2, 2, 1),
    Sketcher.Constraint("Coincident", 2, 2, 3, 1),
    Sketcher.Constraint("Coincident", 3, 2, 0, 1),
    Sketcher.Constraint("Vertical", 0),
    Sketcher.Constraint("Horizontal", 1),
    Sketcher.Constraint("Vertical", 2),
    Sketcher.Constraint("Horizontal", 3),
    Sketcher.Constraint("DistanceX", 1, 2, 1, 1, Q("57.5 in")),
    Sketcher.Constraint("DistanceY", 0, 2, 0, 1, Q("27.5 in")),
    Sketcher.Constraint("DistanceY", -1, 1, 2, 2, Q("28 in")),
    Sketcher.Constraint("DistanceX", -1, 1, 0, 2, Q("692.362348 mm")),
])
pocket4 = doc.addObject("PartDesign::Pocket", "Pocket003")
body.addObject(pocket4)
pocket4.Profile = sketch10
pocket4.Type = "ThroughAll"
pocket4.Reversed = True

# Sketch on XY plane
sketch11 = doc.addObject("Sketcher::SketchObject", "Sketch010")
body.addObject(sketch11)
sketch11.AttachmentSupport = (doc.XY_Plane, [""])
sketch11.MapMode = "FlatFace"
sketch11.AttachmentOffset = App.Placement(V(0, 0, 28 * 25.4), App.Rotation())
sketch11.addGeometry([
    Part.LineSegment(V(-1004, 0, 0), V(-1004, -4622, 0)),  # 0
    Part.LineSegment(V(-1004, -4622, 0), V(-801, -4622, 0)),  # 1
    Part.LineSegment(V(-801, -4622, 0), V(-801, 0, 0)),  # 2
    Part.LineSegment(V(-801, 0, 0), V(-1004, 0, 0)),  # 3
    Part.LineSegment(V(725, -55, 0), V(725, -4618, 0)),  # 4
    Part.LineSegment(V(725, -4618, 0), V(929, -4618, 0)),  # 5
    Part.LineSegment(V(929, -4618, 0), V(929, -55, 0)),  # 6
    Part.LineSegment(V(929, -55, 0), V(725, -55, 0)),  # 7
], False)
sketch11.addConstraint([
    Sketcher.Constraint("Coincident", 0, 2, 1, 1),
    Sketcher.Constraint("Coincident", 1, 2, 2, 1),
    Sketcher.Constraint("Coincident", 2, 2, 3, 1),
    Sketcher.Constraint("Coincident", 3, 2, 0, 1),
    Sketcher.Constraint("Coincident", 4, 2, 5, 1),
    Sketcher.Constraint("Coincident", 5, 2, 6, 1),
    Sketcher.Constraint("Coincident", 6, 2, 7, 1),
    Sketcher.Constraint("Coincident", 7, 2, 4, 1),
    Sketcher.Constraint("Vertical", 0),
    Sketcher.Constraint("Horizontal", 1),
    Sketcher.Constraint("Vertical", 2),
    Sketcher.Constraint("Horizontal", 3),
    Sketcher.Constraint("Vertical", 4),
    Sketcher.Constraint("Horizontal", 5),
    Sketcher.Constraint("Vertical", 6),
    Sketcher.Constraint("Horizontal", 7),
    Sketcher.Constraint("Equal", 3, 5),
    Sketcher.Constraint("DistanceX", 1, 1, 1, 2, Q("8 in")),
    Sketcher.Constraint("DistanceY", 0, 2, 0, 1, Q("182 in")),
    Sketcher.Constraint("DistanceY", 4, 2, 4, 1, Q("4563.148059 mm")),
    Sketcher.Constraint("DistanceX", -1, 1, 5, 2, Q("928.587812 mm")),
    Sketcher.Constraint("DistanceX", 1, 2, 4, 2, Q("1526.031149 mm")),
    Sketcher.Constraint("DistanceY", 1, 2, 4, 2, Q("4.108651 mm")),
    Sketcher.Constraint("DistanceY", 0, 2, -1, 1, Q("4622.359497 mm")),
])
pad7 = doc.addObject("PartDesign::Pad", "Pad006")
body.addObject(pad7)
pad7.Profile = sketch11
pad7.Length = Q("2 in")

# Sketch on XY plane
sketch12 = doc.addObject("Sketcher::SketchObject", "Sketch011")
body.addObject(sketch12)
sketch12.AttachmentSupport = (doc.XY_Plane, [""])
sketch12.MapMode = "FlatFace"
sketch12.AttachmentOffset = App.Placement(V(0, 0, -2 * 25.4), App.Rotation())
sketch12.addGeometry([
    Part.LineSegment(V(927, -51, 0), V(927, -4826, 0)),  # 0
    Part.LineSegment(V(927, -4826, 0), V(-1003, -4826, 0)),  # 1
    Part.LineSegment(V(-1003, -4826, 0), V(-1003, 0, 0)),  # 2
    Part.LineSegment(V(-1003, 0, 0), V(-1257, 0, 0)),  # 3
    Part.LineSegment(V(-1257, 0, 0), V(-1257, 1270, 0)),  # 4
    Part.LineSegment(V(-1257, 1270, 0), V(1181, 1270, 0)),  # 5
    Part.LineSegment(V(1181, 1270, 0), V(1181, -51, 0)),  # 6
    Part.LineSegment(V(1181, -51, 0), V(927, -51, 0)),  # 7
    Part.LineSegment(V(877, -4775, 0), V(877, 0, 0)),  # 8
    Part.LineSegment(V(877, 0, 0), V(1131, 0, 0)),  # 9
    Part.LineSegment(V(1131, 0, 0), V(1131, 1219, 0)),  # 10
    Part.LineSegment(V(1131, 1219, 0), V(-1206, 1219, 0)),  # 11
    Part.LineSegment(V(-1206, 1219, 0), V(-1206, 51, 0)),  # 12
    Part.LineSegment(V(-1206, 51, 0), V(-952, 51, 0)),  # 13
    Part.LineSegment(V(-952, 51, 0), V(-952, -4775, 0)),  # 14
    Part.LineSegment(V(-952, -4775, 0), V(877, -4775, 0)),  # 15
], False)
sketch12.addConstraint([
    Sketcher.Constraint("Coincident", 0, 2, 1, 1),
    Sketcher.Constraint("Coincident", 1, 2, 2, 1),
    Sketcher.Constraint("Coincident", 2, 2, 3, 1),
    Sketcher.Constraint("Coincident", 3, 2, 4, 1),
    Sketcher.Constraint("Coincident", 4, 2, 5, 1),
    Sketcher.Constraint("Coincident", 5, 2, 6, 1),
    Sketcher.Constraint("Coincident", 6, 2, 7, 1),
    Sketcher.Constraint("Coincident", 7, 2, 0, 1),
    Sketcher.Constraint("Coincident", 8, 2, 9, 1),
    Sketcher.Constraint("Coincident", 9, 2, 10, 1),
    Sketcher.Constraint("Coincident", 10, 2, 11, 1),
    Sketcher.Constraint("Coincident", 11, 2, 12, 1),
    Sketcher.Constraint("Coincident", 12, 2, 13, 1),
    Sketcher.Constraint("Coincident", 13, 2, 14, 1),
    Sketcher.Constraint("Coincident", 14, 2, 15, 1),
    Sketcher.Constraint("Coincident", 15, 2, 8, 1),
    Sketcher.Constraint("Vertical", 0),
    Sketcher.Constraint("Horizontal", 1),
    Sketcher.Constraint("Vertical", 2),
    Sketcher.Constraint("Horizontal", 3),
    Sketcher.Constraint("Vertical", 4),
    Sketcher.Constraint("Horizontal", 5),
    Sketcher.Constraint("Vertical", 6),
    Sketcher.Constraint("Horizontal", 7),
    Sketcher.Constraint("Vertical", 8),
    Sketcher.Constraint("Horizontal", 9),
    Sketcher.Constraint("Vertical", 10),
    Sketcher.Constraint("Horizontal", 11),
    Sketcher.Constraint("Vertical", 12),
    Sketcher.Constraint("Horizontal", 13),
    Sketcher.Constraint("Vertical", 14),
    Sketcher.Constraint("Horizontal", 15),
    Sketcher.Constraint("PointOnObject", 2, 2, -1),
    Sketcher.Constraint("PointOnObject", 8, 2, -1),
    Sketcher.Constraint("Equal", 3, 7),
    Sketcher.Constraint("Equal", 7, 9),
    Sketcher.Constraint("Equal", 9, 13),
    Sketcher.Constraint("Equal", 0, 8),
    Sketcher.Constraint("Equal", 2, 14),
    Sketcher.Constraint("DistanceX", 1, 2, 1, 1, Q("76 in")),
    Sketcher.Constraint("DistanceX", 3, 2, 3, 1, Q("10 in")),
    Sketcher.Constraint("DistanceX", 11, 2, 11, 1, Q("92 in")),
    Sketcher.Constraint("DistanceY", 0, 2, 0, 1, Q("188 in")),
    Sketcher.Constraint("DistanceY", 2, 1, 2, 2, Q("190 in")),
    Sketcher.Constraint("DistanceY", 4, 1, 4, 2, Q("50 in")),
    Sketcher.Constraint("DistanceY", 10, 1, 10, 2, Q("48 in")),
    Sketcher.Constraint("DistanceX", 8, 2, 7, 2, Q("2 in")),
    Sketcher.Constraint("DistanceX", -1, 1, 0, 2, Q("927.312348 mm")),
])
pad8 = doc.addObject("PartDesign::Pad", "Pad007")
body.addObject(pad8)
pad8.Profile = sketch12
pad8.Length = Q("7 in")
pad8.Reversed = True

doc.recompute()
